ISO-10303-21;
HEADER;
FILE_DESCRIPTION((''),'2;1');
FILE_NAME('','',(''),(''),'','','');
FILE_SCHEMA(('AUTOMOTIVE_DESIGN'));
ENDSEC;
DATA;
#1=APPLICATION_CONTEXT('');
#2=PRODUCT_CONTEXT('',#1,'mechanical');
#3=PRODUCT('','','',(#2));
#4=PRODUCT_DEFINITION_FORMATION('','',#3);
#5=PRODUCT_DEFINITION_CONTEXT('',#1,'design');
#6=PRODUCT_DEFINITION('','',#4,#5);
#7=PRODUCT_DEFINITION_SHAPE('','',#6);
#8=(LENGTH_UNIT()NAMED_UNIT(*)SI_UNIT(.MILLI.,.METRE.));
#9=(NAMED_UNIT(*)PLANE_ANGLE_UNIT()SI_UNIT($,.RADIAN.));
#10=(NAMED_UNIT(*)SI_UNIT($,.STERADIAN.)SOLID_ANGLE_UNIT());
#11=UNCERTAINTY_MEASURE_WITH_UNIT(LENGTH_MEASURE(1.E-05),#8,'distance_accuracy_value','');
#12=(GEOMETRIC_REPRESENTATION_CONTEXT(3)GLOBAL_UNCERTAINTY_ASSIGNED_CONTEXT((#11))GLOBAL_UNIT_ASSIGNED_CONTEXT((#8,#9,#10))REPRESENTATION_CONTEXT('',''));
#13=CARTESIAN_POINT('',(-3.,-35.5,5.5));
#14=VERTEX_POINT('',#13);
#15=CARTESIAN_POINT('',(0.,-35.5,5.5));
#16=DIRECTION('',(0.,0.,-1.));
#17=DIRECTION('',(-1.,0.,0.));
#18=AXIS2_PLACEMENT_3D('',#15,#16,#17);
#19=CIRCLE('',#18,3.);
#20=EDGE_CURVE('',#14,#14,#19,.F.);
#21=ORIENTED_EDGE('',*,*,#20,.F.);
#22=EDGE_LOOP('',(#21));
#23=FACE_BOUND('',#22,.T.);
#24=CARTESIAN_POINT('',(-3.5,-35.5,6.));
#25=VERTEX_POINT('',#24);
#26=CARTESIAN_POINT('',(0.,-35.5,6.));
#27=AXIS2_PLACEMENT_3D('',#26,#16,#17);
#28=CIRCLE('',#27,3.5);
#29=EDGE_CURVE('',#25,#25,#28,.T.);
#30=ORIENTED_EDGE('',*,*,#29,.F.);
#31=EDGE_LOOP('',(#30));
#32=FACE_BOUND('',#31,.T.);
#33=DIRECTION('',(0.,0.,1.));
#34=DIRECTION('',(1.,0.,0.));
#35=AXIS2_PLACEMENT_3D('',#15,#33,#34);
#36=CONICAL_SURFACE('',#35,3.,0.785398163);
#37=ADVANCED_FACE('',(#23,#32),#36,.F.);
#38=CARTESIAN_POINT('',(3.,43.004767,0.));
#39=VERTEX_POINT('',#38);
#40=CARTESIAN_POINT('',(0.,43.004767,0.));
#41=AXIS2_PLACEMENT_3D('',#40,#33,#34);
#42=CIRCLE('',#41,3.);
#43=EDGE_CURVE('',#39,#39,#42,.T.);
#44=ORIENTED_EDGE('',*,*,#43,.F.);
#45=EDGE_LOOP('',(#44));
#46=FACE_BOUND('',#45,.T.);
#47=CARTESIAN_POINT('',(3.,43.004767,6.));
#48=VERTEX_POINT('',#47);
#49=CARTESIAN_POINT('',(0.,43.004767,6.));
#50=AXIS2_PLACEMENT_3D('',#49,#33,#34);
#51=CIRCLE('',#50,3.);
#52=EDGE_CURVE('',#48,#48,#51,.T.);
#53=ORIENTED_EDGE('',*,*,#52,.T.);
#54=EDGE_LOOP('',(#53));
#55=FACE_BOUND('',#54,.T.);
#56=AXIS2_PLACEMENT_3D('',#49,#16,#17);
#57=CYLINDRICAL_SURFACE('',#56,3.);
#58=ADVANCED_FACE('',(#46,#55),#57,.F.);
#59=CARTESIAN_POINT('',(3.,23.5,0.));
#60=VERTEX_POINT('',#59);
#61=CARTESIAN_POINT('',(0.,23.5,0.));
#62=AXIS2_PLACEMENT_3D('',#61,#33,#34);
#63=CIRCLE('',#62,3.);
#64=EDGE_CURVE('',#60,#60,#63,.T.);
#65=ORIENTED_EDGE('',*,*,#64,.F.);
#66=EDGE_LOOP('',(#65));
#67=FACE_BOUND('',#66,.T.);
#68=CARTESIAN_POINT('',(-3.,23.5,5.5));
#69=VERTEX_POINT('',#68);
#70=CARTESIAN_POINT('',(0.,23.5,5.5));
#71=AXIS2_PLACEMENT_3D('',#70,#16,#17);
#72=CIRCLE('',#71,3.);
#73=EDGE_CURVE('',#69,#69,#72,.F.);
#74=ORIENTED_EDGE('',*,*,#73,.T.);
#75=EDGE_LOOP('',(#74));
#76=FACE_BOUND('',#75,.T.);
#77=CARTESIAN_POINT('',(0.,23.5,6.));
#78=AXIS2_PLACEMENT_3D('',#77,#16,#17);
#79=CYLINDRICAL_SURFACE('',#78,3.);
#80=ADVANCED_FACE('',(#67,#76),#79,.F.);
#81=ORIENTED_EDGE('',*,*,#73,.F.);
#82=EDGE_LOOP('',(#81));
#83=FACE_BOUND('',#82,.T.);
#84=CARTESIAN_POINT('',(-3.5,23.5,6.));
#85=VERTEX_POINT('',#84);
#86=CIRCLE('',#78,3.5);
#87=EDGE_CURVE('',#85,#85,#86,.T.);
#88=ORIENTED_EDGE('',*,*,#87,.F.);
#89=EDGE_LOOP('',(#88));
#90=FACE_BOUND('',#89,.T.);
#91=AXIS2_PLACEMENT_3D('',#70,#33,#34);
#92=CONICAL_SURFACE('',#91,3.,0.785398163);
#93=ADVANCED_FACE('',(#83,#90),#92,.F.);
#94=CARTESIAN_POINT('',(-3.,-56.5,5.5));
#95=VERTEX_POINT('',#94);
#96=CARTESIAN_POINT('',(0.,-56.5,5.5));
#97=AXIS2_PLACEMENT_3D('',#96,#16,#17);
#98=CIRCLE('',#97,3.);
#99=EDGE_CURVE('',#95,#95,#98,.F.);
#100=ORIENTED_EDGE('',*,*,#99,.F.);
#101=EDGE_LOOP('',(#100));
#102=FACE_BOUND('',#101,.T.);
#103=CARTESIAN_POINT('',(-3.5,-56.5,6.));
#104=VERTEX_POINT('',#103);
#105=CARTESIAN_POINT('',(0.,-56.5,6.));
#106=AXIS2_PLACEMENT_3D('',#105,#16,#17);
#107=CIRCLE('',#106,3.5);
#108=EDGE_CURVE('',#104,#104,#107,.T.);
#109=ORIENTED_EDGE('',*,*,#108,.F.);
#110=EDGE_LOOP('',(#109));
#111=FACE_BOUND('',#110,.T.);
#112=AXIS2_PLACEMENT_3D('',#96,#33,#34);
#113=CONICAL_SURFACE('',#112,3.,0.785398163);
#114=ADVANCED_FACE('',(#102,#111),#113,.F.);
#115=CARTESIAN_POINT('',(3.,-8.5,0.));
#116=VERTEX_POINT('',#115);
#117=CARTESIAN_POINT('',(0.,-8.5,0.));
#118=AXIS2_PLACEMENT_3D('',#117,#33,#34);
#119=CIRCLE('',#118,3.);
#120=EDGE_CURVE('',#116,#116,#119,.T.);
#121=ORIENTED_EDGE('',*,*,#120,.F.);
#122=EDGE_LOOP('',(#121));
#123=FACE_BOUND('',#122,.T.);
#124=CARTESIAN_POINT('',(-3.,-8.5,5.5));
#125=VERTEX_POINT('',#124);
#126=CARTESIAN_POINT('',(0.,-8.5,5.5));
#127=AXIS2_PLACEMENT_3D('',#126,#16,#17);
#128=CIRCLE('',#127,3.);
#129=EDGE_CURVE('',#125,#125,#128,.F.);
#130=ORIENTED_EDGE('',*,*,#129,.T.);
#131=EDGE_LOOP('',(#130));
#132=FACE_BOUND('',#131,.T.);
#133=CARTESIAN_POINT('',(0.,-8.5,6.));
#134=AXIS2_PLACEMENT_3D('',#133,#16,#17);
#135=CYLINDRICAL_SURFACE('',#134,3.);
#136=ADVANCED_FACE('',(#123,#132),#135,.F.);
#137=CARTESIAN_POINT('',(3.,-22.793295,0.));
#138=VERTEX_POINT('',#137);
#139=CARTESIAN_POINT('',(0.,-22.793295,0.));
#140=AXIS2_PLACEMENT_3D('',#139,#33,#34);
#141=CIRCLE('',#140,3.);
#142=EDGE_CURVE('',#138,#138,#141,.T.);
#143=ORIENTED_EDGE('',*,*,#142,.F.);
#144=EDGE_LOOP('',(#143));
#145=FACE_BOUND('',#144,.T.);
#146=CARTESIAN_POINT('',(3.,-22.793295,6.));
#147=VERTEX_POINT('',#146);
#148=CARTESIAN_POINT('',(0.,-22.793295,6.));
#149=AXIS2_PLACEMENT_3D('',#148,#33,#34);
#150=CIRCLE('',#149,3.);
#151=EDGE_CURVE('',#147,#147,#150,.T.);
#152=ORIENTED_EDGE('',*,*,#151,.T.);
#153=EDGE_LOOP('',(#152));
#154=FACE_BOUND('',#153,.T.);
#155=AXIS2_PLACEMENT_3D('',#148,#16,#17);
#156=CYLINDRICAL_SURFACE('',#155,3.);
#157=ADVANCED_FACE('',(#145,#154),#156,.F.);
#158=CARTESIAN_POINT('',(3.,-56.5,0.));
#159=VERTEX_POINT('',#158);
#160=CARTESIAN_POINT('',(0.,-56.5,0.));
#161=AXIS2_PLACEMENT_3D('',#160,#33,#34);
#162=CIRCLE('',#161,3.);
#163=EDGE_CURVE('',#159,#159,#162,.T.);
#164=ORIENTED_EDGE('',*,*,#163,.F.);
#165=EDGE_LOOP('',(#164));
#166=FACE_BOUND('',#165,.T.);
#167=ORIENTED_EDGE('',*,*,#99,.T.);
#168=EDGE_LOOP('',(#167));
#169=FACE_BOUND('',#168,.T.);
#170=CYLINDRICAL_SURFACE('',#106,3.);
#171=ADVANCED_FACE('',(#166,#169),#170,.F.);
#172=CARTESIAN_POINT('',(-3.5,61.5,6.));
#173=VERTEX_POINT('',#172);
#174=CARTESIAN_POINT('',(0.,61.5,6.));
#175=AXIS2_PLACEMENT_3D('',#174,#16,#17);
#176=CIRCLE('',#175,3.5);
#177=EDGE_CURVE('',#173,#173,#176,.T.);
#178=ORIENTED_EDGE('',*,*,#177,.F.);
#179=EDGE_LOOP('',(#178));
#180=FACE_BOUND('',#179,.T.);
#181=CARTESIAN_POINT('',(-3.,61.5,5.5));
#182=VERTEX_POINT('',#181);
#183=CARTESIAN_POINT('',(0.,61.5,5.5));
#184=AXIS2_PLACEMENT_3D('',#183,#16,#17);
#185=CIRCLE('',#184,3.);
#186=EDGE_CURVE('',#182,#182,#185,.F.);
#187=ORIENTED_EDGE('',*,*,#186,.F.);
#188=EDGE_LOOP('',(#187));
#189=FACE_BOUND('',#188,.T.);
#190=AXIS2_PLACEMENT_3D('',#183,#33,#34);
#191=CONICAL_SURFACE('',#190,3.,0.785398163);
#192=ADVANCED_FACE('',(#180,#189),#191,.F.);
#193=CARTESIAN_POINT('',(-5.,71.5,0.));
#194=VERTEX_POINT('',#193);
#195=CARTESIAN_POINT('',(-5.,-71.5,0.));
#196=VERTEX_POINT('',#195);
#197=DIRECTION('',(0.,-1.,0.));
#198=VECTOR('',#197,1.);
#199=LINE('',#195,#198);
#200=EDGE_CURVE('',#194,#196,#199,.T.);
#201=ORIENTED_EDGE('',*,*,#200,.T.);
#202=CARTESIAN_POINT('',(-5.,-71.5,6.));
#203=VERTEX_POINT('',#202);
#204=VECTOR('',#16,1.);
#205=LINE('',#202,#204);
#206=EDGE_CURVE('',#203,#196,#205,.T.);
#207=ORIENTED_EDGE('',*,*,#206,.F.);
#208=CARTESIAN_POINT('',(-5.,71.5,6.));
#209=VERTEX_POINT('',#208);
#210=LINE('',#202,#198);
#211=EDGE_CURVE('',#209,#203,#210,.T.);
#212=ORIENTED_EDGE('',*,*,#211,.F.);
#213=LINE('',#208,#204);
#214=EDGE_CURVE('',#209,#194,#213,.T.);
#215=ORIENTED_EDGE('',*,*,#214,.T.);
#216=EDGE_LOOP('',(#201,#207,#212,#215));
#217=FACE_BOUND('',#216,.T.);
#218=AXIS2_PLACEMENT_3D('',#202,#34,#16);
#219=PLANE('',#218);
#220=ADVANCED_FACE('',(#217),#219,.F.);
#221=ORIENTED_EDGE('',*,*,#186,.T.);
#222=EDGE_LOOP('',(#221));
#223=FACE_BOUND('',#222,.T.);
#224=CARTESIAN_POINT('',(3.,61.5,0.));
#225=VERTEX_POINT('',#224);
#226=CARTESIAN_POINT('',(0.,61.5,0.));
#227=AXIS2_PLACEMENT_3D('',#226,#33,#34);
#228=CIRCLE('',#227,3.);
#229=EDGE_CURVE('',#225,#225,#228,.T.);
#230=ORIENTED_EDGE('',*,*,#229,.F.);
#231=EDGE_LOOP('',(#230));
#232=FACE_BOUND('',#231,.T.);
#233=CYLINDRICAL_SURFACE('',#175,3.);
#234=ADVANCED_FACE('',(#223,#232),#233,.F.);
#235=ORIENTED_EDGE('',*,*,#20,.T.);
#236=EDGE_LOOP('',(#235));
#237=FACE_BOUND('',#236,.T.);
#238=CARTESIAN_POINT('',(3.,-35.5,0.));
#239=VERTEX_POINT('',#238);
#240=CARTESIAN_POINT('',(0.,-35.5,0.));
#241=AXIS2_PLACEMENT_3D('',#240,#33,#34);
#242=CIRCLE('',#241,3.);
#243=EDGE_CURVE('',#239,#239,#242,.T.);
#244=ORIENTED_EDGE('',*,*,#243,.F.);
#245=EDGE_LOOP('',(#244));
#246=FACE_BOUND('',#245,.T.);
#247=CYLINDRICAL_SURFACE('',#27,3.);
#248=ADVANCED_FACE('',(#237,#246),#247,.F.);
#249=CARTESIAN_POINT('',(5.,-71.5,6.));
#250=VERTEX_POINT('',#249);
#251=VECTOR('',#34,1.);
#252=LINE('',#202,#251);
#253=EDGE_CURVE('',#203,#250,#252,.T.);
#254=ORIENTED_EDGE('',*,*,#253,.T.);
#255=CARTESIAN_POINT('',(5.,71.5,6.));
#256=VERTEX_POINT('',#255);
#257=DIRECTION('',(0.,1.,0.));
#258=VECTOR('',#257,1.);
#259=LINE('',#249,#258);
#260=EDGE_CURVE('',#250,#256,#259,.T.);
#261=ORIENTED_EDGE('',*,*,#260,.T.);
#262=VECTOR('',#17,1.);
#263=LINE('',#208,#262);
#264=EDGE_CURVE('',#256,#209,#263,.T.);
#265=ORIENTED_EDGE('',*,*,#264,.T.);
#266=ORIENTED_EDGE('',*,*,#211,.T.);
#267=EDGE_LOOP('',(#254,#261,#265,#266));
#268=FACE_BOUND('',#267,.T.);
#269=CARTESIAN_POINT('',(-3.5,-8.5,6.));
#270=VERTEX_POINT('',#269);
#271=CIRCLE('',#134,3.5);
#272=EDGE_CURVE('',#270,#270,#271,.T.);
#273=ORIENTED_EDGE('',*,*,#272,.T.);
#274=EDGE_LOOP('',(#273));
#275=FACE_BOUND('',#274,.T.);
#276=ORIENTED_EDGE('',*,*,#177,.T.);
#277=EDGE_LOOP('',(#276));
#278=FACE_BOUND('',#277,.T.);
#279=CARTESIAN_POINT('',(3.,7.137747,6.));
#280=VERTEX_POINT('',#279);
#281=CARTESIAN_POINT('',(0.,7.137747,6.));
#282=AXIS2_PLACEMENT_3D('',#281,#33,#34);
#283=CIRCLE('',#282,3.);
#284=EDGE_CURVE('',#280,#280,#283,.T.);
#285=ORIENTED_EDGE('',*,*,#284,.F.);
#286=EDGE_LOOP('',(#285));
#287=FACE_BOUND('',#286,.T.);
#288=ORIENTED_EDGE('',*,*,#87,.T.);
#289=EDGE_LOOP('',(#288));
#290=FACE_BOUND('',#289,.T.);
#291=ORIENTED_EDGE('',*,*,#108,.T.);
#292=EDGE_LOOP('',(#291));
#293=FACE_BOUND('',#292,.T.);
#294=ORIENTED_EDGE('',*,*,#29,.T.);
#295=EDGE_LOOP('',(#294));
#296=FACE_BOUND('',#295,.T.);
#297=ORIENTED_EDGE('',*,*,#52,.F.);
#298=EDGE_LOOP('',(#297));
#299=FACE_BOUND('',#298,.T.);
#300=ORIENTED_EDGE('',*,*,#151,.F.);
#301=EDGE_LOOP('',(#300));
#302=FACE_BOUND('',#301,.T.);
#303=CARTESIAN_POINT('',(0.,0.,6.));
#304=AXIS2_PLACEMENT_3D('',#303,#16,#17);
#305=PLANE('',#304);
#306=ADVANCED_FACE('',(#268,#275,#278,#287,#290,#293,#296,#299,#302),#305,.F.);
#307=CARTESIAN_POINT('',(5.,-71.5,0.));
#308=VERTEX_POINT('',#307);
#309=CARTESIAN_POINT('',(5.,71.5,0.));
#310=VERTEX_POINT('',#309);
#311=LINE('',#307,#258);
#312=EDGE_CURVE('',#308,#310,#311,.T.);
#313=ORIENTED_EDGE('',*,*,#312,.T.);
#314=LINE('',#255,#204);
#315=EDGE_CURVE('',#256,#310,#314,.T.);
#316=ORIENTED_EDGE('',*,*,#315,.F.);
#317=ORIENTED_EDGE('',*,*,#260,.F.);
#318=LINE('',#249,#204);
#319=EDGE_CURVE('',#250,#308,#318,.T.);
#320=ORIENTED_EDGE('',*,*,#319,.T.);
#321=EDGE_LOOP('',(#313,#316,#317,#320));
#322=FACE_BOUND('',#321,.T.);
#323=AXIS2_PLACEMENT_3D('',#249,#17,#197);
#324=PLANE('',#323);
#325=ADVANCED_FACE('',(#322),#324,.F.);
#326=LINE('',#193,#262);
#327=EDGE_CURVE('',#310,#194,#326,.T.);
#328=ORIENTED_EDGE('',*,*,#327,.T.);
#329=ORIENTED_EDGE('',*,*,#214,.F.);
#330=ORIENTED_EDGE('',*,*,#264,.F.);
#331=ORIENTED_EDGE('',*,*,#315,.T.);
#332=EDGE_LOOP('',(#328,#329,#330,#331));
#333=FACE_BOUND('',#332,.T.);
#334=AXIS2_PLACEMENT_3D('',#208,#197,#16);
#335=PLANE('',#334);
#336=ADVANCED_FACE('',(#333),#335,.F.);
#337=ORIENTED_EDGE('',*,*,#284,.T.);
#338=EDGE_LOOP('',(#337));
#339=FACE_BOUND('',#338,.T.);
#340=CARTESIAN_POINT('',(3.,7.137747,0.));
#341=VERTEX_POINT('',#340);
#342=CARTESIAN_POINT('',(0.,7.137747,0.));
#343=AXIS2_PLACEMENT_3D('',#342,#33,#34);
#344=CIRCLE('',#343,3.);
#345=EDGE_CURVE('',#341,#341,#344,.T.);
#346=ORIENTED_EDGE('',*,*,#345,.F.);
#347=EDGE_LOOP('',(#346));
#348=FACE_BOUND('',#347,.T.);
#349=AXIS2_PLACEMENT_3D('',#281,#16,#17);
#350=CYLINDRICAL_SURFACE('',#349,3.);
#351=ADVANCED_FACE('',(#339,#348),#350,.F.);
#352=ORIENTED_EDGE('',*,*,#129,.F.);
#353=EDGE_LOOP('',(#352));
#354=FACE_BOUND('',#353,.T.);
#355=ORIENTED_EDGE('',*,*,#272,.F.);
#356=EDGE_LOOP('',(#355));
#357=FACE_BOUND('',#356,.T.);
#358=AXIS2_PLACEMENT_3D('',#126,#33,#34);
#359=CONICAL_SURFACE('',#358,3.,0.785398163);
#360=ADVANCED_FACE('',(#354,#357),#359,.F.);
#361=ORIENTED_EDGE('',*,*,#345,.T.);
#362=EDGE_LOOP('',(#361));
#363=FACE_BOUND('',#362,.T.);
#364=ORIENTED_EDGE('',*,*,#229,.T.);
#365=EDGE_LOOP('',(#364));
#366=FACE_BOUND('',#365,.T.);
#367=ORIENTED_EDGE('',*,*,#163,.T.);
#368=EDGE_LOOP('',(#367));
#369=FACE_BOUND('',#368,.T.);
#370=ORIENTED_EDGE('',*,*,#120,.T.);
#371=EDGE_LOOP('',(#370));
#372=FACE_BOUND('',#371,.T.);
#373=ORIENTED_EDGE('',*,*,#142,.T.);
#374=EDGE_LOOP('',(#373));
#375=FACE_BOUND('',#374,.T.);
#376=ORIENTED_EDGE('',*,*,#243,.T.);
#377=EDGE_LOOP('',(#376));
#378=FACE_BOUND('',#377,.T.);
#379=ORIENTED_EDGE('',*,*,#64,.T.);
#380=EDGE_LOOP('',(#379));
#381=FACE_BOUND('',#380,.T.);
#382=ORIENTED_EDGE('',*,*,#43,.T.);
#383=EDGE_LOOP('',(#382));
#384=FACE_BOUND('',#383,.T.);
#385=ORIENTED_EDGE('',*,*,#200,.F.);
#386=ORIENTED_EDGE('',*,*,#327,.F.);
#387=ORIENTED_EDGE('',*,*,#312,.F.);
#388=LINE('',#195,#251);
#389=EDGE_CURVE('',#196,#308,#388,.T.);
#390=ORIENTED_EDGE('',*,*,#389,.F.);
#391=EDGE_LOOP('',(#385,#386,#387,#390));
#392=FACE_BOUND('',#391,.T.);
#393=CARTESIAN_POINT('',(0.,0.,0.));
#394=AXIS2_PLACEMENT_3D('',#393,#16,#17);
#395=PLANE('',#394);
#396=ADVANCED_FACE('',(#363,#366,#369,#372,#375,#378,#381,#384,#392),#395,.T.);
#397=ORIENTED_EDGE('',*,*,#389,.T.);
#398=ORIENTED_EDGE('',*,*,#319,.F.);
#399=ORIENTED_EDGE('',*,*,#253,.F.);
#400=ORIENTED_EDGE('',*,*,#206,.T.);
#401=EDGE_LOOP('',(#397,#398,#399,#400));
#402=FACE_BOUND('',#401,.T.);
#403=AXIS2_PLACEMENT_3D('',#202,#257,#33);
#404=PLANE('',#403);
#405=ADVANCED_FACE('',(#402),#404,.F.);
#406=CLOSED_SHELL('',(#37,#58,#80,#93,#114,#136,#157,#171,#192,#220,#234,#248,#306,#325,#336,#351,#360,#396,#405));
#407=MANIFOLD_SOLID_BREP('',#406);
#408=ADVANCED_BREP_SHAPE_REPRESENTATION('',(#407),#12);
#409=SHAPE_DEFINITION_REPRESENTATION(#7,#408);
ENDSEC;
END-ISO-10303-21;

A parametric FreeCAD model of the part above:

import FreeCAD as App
import Part
import Sketcher
from FreeCAD import Vector
Q = App.Units.Quantity


def edges_at(feature, points):
    """Names of the edges that pass closest to the given points."""
    edges = feature.Shape.Edges
    near = lambda p: min(range(len(edges)), key=lambda i: edges[i].distToShape(Part.Vertex(*p))[0])
    return sorted({f"Edge{near(p) + 1}" for p in points})


def add_polygon(sketch, points):
    """Adds a closed chain of lines whose ends are joined by coincident constraints."""
    first, n = sketch.GeometryCount, len(points)
    for a, b in zip(points, points[1:] + points[:1]):
        sketch.addGeometry(Part.LineSegment(App.Vector(*a, 0), App.Vector(*b, 0)), False)
    for i in range(n):
        sketch.addConstraint(Sketcher.Constraint("Coincident", first + i, 2, first + (i + 1) % n, 1))

doc = App.newDocument("Part")
body = doc.addObject("PartDesign::Body", "Body")

# Sketch on XY plane
sketch1 = doc.addObject("Sketcher::SketchObject", "Sketch")
body.addObject(sketch1)
sketch1.AttachmentSupport = (doc.XY_Plane, [""])
sketch1.MapMode = "FlatFace"
add_polygon(sketch1, [(-5, 71.5), (-5, -71.5), (5, -71.5), (5, 71.5)])  # lines 0-3
sketch1.addGeometry(Part.Circle(Vector(0, -56.5, 0), Vector(0, 0, 1), 3), False)  # 4
sketch1.addGeometry(Part.Circle(Vector(0, -35.5, 0), Vector(0, 0, 1), 3), False)  # 5
sketch1.addGeometry(Part.Circle(Vector(0, -22.793295, 0), Vector(0, 0, 1), 3), False)  # 6
sketch1.addGeometry(Part.Circle(Vector(0, -8.5, 0), Vector(0, 0, 1), 3), False)  # 7
sketch1.addGeometry(Part.Circle(Vector(0, 7.137747, 0), Vector(0, 0, 1), 3), False)  # 8
sketch1.addGeometry(Part.Circle(Vector(0, 23.5, 0), Vector(0, 0, 1), 3), False)  # 9
sketch1.addGeometry(Part.Circle(Vector(0, 43.004767, 0), Vector(0, 0, 1), 3), False)  # 10
sketch1.addGeometry(Part.Circle(Vector(0, 61.5, 0), Vector(0, 0, 1), 3), False)  # 11
sketch1.addConstraint([
    Sketcher.Constraint("Vertical", 0),
    Sketcher.Constraint("Horizontal", 1),
    Sketcher.Constraint("Vertical", 2),
    Sketcher.Constraint("Horizontal", 3),
    Sketcher.Constraint("Equal", 4, 5),
    Sketcher.Constraint("Equal", 5, 6),
    Sketcher.Constraint("Equal", 6, 7),
    Sketcher.Constraint("Equal", 7, 8),
    Sketcher.Constraint("Equal", 8, 9),
    Sketcher.Constraint("Equal", 9, 10),
    Sketcher.Constraint("Equal", 10, 11),
    Sketcher.Constraint("Symmetric", 0, 2, 2, 2, -1, 1),
    Sketcher.Constraint("PointOnObject", 4, 3, -2),
    Sketcher.Constraint("PointOnObject", 5, 3, -2),
    Sketcher.Constraint("PointOnObject", 6, 3, -2),
    Sketcher.Constraint("PointOnObject", 7, 3, -2),
    Sketcher.Constraint("PointOnObject", 8, 3, -2),
    Sketcher.Constraint("PointOnObject", 9, 3, -2),
    Sketcher.Constraint("PointOnObject", 10, 3, -2),
    Sketcher.Constraint("PointOnObject", 11, 3, -2),
    Sketcher.Constraint("Diameter", 4, Q("6 mm")),
    Sketcher.Constraint("DistanceX", 1, 1, 1, 2, Q("10 mm")),
    Sketcher.Constraint("DistanceY", 0, 2, 0, 1, Q("143 mm")),
    Sketcher.Constraint("DistanceY", 4, 3, 5, 3, Q("21 mm")),
    Sketcher.Constraint("DistanceY", 5, 3, 7, 3, Q("27 mm")),
    Sketcher.Constraint("DistanceY", 7, 3, 9, 3, Q("32 mm")),
    Sketcher.Constraint("DistanceY", 9, 3, 11, 3, Q("38 mm")),
    Sketcher.Constraint("DistanceY", 0, 2, 4, 3, Q("15 mm")),
    Sketcher.Constraint("DistanceY", 8, 3, 10, 3, Q("35.86702 mm")),
    Sketcher.Constraint("DistanceY", 6, 3, -1, 1, Q("22.793295 mm")),
    Sketcher.Constraint("DistanceY", -1, 1, 8, 3, Q("7.137747 mm")),
])
pad1 = doc.addObject("PartDesign::Pad", "Pad")
body.addObject(pad1)
pad1.Profile = sketch1
pad1.Length = 6
doc.recompute()

chamfer = doc.addObject("PartDesign::Chamfer", "Chamfer")
body.addObject(chamfer)
chamfer.Base = (pad1, edges_at(pad1, [
    (-3, -56.5, 6),
    (-3, -35.5, 6),
    (-3, -8.5, 6),
    (-3, 23.5, 6),
    (-3, 61.5, 6),
]))
chamfer.Size = 0.5

doc.recompute()
